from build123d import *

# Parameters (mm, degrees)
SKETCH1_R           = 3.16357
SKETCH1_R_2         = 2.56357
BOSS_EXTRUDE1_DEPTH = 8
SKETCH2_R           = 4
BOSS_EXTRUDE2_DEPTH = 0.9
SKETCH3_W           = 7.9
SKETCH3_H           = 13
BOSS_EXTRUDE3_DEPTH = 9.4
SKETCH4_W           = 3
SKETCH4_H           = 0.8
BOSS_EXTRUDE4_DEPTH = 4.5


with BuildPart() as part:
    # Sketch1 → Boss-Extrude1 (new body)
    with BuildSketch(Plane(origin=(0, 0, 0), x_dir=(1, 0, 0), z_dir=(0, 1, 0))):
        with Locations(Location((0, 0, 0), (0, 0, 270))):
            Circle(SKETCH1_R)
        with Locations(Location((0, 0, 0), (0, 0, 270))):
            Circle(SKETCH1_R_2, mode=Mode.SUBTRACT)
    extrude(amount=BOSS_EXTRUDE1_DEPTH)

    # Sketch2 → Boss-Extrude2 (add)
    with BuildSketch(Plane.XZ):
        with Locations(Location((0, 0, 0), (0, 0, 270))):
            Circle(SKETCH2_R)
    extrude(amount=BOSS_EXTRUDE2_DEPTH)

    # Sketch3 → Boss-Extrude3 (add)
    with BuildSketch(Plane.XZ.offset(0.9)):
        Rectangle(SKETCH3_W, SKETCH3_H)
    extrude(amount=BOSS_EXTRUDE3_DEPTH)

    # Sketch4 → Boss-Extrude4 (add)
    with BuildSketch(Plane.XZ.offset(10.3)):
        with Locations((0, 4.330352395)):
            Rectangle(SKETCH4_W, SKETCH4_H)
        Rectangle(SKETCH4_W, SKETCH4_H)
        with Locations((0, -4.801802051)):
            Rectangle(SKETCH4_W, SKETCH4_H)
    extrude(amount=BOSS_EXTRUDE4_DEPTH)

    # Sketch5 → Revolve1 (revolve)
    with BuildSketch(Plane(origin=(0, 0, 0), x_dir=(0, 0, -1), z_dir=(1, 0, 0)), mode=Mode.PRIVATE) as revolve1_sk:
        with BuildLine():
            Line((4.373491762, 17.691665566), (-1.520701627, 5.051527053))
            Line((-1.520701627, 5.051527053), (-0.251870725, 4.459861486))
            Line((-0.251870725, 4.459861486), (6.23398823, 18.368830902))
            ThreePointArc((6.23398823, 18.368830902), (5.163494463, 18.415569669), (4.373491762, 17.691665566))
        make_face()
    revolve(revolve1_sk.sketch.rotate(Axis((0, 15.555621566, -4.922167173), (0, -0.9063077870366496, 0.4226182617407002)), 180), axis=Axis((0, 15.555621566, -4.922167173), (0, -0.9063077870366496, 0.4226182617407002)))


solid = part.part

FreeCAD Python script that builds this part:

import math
import FreeCAD as App
import Part
import Sketcher
Q = App.Units.Quantity

doc = App.newDocument("Part")
body = doc.addObject("PartDesign::Body", "Body")

# Sketch on XZ plane
sketch1 = body.newObject("Sketcher::SketchObject", "Sketch")
sketch1.AttachmentSupport = (doc.getObject("XZ_Plane"), [""])
sketch1.MapMode = "FlatFace"
sketch1.addGeometry(Part.Circle(App.Vector(0, 0, 0), App.Vector(0, 0, 1), 3.2), False)
sketch1.addGeometry(Part.Circle(App.Vector(0, 0, 0), App.Vector(0, 0, 1), 2.6), False)
sketch1.addConstraint(Sketcher.Constraint("Coincident", 0, 3, -1, 1))
sketch1.addConstraint(Sketcher.Constraint("Coincident", 1, 3, -1, 1))
sketch1.addConstraint(Sketcher.Constraint("Diameter", 0, Q("6.32714 mm")))
sketch1.addConstraint(Sketcher.Constraint("Diameter", 1, Q("5.12714 mm")))
pad1 = body.newObject("PartDesign::Pad", "Pad")
pad1.Profile = sketch1
pad1.Length = 8
pad1.Reversed = True

# Sketch on XZ plane
sketch2 = body.newObject("Sketcher::SketchObject", "Sketch001")
sketch2.AttachmentSupport = (doc.getObject("XZ_Plane"), [""])
sketch2.MapMode = "FlatFace"
sketch2.addGeometry(Part.Circle(App.Vector(0, 0, 0), App.Vector(0, 0, 1), 4), False)
sketch2.addConstraint(Sketcher.Constraint("Coincident", 0, 3, -1, 1))
sketch2.addConstraint(Sketcher.Constraint("Diameter", 0, Q("8 mm")))
pad2 = body.newObject("PartDesign::Pad", "Pad001")
pad2.Profile = sketch2
pad2.Length = 0.9

# Sketch on XZ plane
sketch3 = body.newObject("Sketcher::SketchObject", "Sketch002")
sketch3.AttachmentSupport = (doc.getObject("XZ_Plane"), [""])
sketch3.MapMode = "FlatFace"
sketch3.AttachmentOffset = App.Placement(App.Vector(0, 0, 0.9), App.Rotation())
sketch3.addGeometry(Part.LineSegment(App.Vector(-4, 6, 0), App.Vector(-4, -6, 0)), False)
sketch3.addGeometry(Part.LineSegment(App.Vector(-4, -6, 0), App.Vector(4, -6, 0)), False)
sketch3.addGeometry(Part.LineSegment(App.Vector(4, -6, 0), App.Vector(4, 6, 0)), False)
sketch3.addGeometry(Part.LineSegment(App.Vector(4, 6, 0), App.Vector(-4, 6, 0)), False)
sketch3.addConstraint(Sketcher.Constraint("Coincident", 0, 2, 1, 1))
sketch3.addConstraint(Sketcher.Constraint("Coincident", 1, 2, 2, 1))
sketch3.addConstraint(Sketcher.Constraint("Coincident", 2, 2, 3, 1))
sketch3.addConstraint(Sketcher.Constraint("Coincident", 3, 2, 0, 1))
sketch3.addConstraint(Sketcher.Constraint("Vertical", 0))
sketch3.addConstraint(Sketcher.Constraint("Horizontal", 1))
sketch3.addConstraint(Sketcher.Constraint("Vertical", 2))
sketch3.addConstraint(Sketcher.Constraint("Horizontal", 3))
sketch3.addConstraint(Sketcher.Constraint("Symmetric", 0, 2, 2, 2, -1, 1))
sketch3.addConstraint(Sketcher.Constraint("DistanceY", 0, 2, 0, 1, Q("13 mm")))
sketch3.addConstraint(Sketcher.Constraint("DistanceX", 1, 1, 1, 2, Q("7.9 mm")))
pad3 = body.newObject("PartDesign::Pad", "Pad002")
pad3.Profile = sketch3
pad3.Length = 9.4

# Sketch on XZ plane
sketch4 = body.newObject("Sketcher::SketchObject", "Sketch003")
sketch4.AttachmentSupport = (doc.getObject("XZ_Plane"), [""])
sketch4.MapMode = "FlatFace"
sketch4.AttachmentOffset = App.Placement(App.Vector(0, 0, 10.3), App.Rotation())
sketch4.addGeometry(Part.LineSegment(App.Vector(-1.5, 4.7, 0), App.Vector(-1.5, 3.9, 0)), False)
sketch4.addGeometry(Part.LineSegment(App.Vector(-1.5, 3.9, 0), App.Vector(1.5, 3.9, 0)), False)
sketch4.addGeometry(Part.LineSegment(App.Vector(1.5, 3.9, 0), App.Vector(1.5, 4.7, 0)), False)
sketch4.addGeometry(Part.LineSegment(App.Vector(1.5, 4.7, 0), App.Vector(-1.5, 4.7, 0)), False)
sketch4.addGeometry(Part.LineSegment(App.Vector(-1.5, 0.4, 0), App.Vector(-1.5, -0.4, 0)), False)
sketch4.addGeometry(Part.LineSegment(App.Vector(-1.5, -0.4, 0), App.Vector(1.5, -0.4, 0)), False)
sketch4.addGeometry(Part.LineSegment(App.Vector(1.5, -0.4, 0), App.Vector(1.5, 0.4, 0)), False)
sketch4.addGeometry(Part.LineSegment(App.Vector(1.5, 0.4, 0), App.Vector(-1.5, 0.4, 0)), False)
sketch4.addGeometry(Part.LineSegment(App.Vector(-1.5, -4.4, 0), App.Vector(-1.5, -5.2, 0)), False)
sketch4.addGeometry(Part.LineSegment(App.Vector(-1.5, -5.2, 0), App.Vector(1.5, -5.2, 0)), False)
sketch4.addGeometry(Part.LineSegment(App.Vector(1.5, -5.2, 0), App.Vector(1.5, -4.4, 0)), False)
sketch4.addGeometry(Part.LineSegment(App.Vector(1.5, -4.4, 0), App.Vector(-1.5, -4.4, 0)), False)
sketch4.addConstraint(Sketcher.Constraint("Coincident", 0, 2, 1, 1))
sketch4.addConstraint(Sketcher.Constraint("Coincident", 1, 2, 2, 1))
sketch4.addConstraint(Sketcher.Constraint("Coincident", 2, 2, 3, 1))
sketch4.addConstraint(Sketcher.Constraint("Coincident", 3, 2, 0, 1))
sketch4.addConstraint(Sketcher.Constraint("Coincident", 4, 2, 5, 1))
sketch4.addConstraint(Sketcher.Constraint("Coincident", 5, 2, 6, 1))
sketch4.addConstraint(Sketcher.Constraint("Coincident", 6, 2, 7, 1))
sketch4.addConstraint(Sketcher.Constraint("Coincident", 7, 2, 4, 1))
sketch4.addConstraint(Sketcher.Constraint("Coincident", 8, 2, 9, 1))
sketch4.addConstraint(Sketcher.Constraint("Coincident", 9, 2, 10, 1))
sketch4.addConstraint(Sketcher.Constraint("Coincident", 10, 2, 11, 1))
sketch4.addConstraint(Sketcher.Constraint("Coincident", 11, 2, 8, 1))
sketch4.addConstraint(Sketcher.Constraint("Vertical", 0))
sketch4.addConstraint(Sketcher.Constraint("Horizontal", 1))
sketch4.addConstraint(Sketcher.Constraint("Vertical", 2))
sketch4.addConstraint(Sketcher.Constraint("Horizontal", 3))
sketch4.addConstraint(Sketcher.Constraint("Vertical", 4))
sketch4.addConstraint(Sketcher.Constraint("Horizontal", 5))
sketch4.addConstraint(Sketcher.Constraint("Vertical", 6))
sketch4.addConstraint(Sketcher.Constraint("Horizontal", 7))
sketch4.addConstraint(Sketcher.Constraint("Vertical", 8))
sketch4.addConstraint(Sketcher.Constraint("Horizontal", 9))
sketch4.addConstraint(Sketcher.Constraint("Vertical", 10))
sketch4.addConstraint(Sketcher.Constraint("Horizontal", 11))
sketch4.addConstraint(Sketcher.Constraint("Symmetric", 4, 2, 6, 2, -1, 1))
sketch4.addConstraint(Sketcher.Constraint("Vertical", 3, 2, 4, 2))
sketch4.addConstraint(Sketcher.Constraint("Vertical", 2, 2, 5, 2))
sketch4.addConstraint(Sketcher.Constraint("Vertical", 7, 2, 8, 2))
sketch4.addConstraint(Sketcher.Constraint("Vertical", 6, 2, 9, 2))
sketch4.addConstraint(Sketcher.Constraint("Equal", 2, 4))
sketch4.addConstraint(Sketcher.Constraint("Equal", 6, 8))
sketch4.addConstraint(Sketcher.Constraint("DistanceX", 1, 1, 1, 2, Q("3 mm")))
sketch4.addConstraint(Sketcher.Constraint("DistanceY", 0, 2, 0, 1, Q("0.8 mm")))
sketch4.addConstraint(Sketcher.Constraint("DistanceY", -1, 1, 0, 2, Q("3.930352 mm")))
sketch4.addConstraint(Sketcher.Constraint("DistanceY", 8, 2, -1, 1, Q("5.201802 mm")))
pad4 = body.newObject("PartDesign::Pad", "Pad003")
pad4.Profile = sketch4
pad4.Length = 4.5

# Sketch on YZ plane
sketch5 = body.newObject("Sketcher::SketchObject", "Sketch004")
sketch5.AttachmentSupport = (doc.getObject("YZ_Plane"), [""])
sketch5.MapMode = "FlatFace"
sketch5.addGeometry(Part.LineSegment(App.Vector(17.7, -4.4, 0), App.Vector(5.1, 1.5, 0)), False)
sketch5.addGeometry(Part.LineSegment(App.Vector(5.1, 1.5, 0), App.Vector(4.5, 0.3, 0)), False)
sketch5.addGeometry(Part.LineSegment(App.Vector(4.5, 0.3, 0), App.Vector(18.4, -6.2, 0)), False)
sketch5.addGeometry(Part.ArcOfCircle(Part.Circle(App.Vector(17.1, -5.6, 0), App.Vector(0, 0, 1), 1.4), math.radians(-25), math.radians(65)), False)
sketch5.addGeometry(Part.LineSegment(App.Vector(18.4, -6.2, 0), App.Vector(4.5, 0.3, 0)), True)  # axis
sketch5.addConstraint(Sketcher.Constraint("Coincident", 0, 2, 1, 1))
sketch5.addConstraint(Sketcher.Constraint("Coincident", 1, 2, 2, 1))
sketch5.addConstraint(Sketcher.Constraint("Coincident", 2, 2, 3, 1))
sketch5.addConstraint(Sketcher.Constraint("Tangent", 3, 2, 0, 1))
sketch5.addConstraint(Sketcher.Constraint("Coincident", 4, 1, 2, 2))
sketch5.addConstraint(Sketcher.Constraint("Coincident", 4, 2, 1, 2))
sketch5.addConstraint(Sketcher.Constraint("Perpendicular", 0, 1))
sketch5.addConstraint(Sketcher.Constraint("Perpendicular", 1, 2))
sketch5.addConstraint(Sketcher.Constraint("Radius", 3, Q("1.4 mm")))
sketch5.addConstraint(Sketcher.Constraint("Angle", 0, Q("155 deg")))
sketch5.addConstraint(Sketcher.Constraint("Distance", 1, Q("1.4 mm")))
sketch5.addConstraint(Sketcher.Constraint("DistanceX", -1, 1, 3, 3, Q("17.1 mm")))
sketch5.addConstraint(Sketcher.Constraint("DistanceY", -1, 1, 0, 2, Q("1.520702 mm")))
sketch5.addConstraint(Sketcher.Constraint("Distance", 0, Q("13.94685 mm")))
revolution = body.newObject("PartDesign::Revolution", "Revolution")
revolution.Profile = sketch5
revolution.ReferenceAxis = (sketch5, ["Axis0"])
revolution.Angle = 360

doc.recompute()
